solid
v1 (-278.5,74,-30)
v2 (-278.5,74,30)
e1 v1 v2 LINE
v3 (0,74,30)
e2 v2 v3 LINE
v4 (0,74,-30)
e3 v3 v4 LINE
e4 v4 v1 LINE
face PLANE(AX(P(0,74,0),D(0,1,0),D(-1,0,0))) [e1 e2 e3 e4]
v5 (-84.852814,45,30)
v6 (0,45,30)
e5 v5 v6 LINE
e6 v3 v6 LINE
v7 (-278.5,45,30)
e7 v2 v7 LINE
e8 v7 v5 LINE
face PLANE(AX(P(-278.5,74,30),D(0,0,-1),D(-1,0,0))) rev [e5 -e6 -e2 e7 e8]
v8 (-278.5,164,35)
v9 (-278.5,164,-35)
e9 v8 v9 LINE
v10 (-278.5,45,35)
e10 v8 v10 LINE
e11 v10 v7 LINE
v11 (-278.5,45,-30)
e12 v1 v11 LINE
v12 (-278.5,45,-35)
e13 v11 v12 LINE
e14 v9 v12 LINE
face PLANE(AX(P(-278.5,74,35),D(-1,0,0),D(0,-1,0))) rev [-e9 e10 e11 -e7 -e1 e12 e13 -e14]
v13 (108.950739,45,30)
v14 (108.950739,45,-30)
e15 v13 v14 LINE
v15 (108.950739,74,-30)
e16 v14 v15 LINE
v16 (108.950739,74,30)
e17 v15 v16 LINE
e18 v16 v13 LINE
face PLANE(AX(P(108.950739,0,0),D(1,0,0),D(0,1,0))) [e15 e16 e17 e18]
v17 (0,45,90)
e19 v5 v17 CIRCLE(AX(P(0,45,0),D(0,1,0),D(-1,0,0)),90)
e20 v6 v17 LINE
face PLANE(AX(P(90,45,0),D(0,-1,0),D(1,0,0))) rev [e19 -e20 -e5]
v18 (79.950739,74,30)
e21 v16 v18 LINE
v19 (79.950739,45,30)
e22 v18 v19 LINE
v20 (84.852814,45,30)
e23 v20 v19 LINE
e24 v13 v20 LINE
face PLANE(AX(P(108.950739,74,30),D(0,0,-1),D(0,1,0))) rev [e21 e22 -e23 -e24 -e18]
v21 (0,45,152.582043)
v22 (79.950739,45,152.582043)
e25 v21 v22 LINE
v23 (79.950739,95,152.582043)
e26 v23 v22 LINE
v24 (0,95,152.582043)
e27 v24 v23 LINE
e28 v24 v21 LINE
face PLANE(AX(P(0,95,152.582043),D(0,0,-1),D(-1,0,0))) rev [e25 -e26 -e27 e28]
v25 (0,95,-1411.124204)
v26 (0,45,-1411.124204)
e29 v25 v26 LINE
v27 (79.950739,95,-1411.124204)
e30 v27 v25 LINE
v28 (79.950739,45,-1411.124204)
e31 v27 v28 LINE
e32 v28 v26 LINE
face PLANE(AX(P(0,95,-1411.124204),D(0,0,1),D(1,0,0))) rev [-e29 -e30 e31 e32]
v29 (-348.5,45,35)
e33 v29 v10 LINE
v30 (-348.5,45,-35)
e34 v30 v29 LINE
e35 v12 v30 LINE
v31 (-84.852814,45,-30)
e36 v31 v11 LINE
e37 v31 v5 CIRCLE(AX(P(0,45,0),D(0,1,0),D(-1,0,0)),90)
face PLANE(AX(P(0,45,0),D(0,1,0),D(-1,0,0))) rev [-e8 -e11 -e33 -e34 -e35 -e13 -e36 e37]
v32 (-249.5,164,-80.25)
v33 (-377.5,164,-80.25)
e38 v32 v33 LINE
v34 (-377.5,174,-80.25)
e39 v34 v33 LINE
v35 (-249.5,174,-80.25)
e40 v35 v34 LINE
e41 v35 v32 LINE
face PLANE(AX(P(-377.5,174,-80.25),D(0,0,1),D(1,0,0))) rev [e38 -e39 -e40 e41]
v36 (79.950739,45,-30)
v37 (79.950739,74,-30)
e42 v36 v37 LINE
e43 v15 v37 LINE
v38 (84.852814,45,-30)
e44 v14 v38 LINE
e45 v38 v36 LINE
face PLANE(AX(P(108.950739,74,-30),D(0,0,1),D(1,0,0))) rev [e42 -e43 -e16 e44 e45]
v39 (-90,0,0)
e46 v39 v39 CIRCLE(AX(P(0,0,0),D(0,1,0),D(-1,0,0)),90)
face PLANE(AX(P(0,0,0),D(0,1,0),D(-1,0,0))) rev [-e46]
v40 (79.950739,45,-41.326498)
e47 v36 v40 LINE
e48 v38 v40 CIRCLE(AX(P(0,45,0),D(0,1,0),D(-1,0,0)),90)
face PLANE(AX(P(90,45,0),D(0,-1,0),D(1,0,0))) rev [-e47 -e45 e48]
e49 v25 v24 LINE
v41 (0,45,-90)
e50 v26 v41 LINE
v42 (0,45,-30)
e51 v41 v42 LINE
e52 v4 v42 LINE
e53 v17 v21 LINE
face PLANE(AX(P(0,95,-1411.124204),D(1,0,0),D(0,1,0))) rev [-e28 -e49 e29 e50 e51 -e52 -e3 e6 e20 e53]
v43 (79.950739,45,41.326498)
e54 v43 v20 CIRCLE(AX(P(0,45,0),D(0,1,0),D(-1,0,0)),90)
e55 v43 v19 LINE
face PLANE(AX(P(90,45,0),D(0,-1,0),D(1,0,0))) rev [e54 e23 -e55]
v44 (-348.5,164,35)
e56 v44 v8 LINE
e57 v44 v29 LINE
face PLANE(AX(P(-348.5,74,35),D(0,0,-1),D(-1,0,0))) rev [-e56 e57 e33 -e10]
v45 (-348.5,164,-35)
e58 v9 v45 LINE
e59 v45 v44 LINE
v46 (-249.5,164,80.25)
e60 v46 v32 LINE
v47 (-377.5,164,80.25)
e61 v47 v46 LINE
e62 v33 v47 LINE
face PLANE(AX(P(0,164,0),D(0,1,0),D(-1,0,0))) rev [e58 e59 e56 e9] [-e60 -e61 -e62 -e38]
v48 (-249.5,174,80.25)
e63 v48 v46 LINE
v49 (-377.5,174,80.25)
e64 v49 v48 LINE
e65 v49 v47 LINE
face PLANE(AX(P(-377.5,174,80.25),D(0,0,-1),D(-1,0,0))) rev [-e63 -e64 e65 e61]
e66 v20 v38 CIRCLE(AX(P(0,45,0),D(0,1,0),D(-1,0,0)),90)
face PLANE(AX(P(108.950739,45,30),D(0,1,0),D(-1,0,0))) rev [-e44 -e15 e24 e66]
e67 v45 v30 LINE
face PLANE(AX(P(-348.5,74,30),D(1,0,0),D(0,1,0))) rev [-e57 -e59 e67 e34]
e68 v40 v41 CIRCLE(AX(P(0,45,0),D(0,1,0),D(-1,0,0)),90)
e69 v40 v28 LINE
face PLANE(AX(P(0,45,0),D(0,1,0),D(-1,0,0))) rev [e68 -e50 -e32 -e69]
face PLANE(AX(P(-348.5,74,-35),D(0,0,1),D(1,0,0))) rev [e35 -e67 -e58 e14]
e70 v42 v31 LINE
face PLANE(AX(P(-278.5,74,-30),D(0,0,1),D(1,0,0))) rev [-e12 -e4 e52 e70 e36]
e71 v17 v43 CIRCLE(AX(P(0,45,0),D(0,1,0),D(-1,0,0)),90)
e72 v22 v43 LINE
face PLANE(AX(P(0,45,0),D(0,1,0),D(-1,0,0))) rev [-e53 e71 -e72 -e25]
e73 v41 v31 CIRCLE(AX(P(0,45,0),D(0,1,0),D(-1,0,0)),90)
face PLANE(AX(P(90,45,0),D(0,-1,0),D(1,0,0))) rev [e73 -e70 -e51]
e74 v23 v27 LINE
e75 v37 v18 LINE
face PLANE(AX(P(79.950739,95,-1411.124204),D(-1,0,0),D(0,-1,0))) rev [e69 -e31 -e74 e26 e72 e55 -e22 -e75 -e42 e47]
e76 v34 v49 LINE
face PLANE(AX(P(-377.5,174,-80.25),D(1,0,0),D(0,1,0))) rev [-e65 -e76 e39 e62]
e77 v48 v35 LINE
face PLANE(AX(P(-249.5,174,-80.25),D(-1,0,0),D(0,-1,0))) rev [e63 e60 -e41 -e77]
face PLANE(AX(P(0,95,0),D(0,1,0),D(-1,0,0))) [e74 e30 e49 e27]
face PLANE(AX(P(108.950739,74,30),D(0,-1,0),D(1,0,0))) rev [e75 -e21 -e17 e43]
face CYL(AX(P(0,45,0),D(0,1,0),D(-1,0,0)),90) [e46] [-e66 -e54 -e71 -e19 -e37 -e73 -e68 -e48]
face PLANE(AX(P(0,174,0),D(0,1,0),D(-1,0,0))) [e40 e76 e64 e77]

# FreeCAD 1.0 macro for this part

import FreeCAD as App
import Part
import Sketcher

V = App.Vector
Q = App.Units.Quantity

doc = App.newDocument("Part")
body = doc.addObject("PartDesign::Body", "Body")

# Sketch on XY plane
sketch1 = body.newObject("Sketcher::SketchObject", "Sketch")
sketch1.AttachmentSupport = (doc.getObject("XY_Plane"), [""])
sketch1.MapMode = "FlatFace"
sketch1.addGeometry(Part.LineSegment(V(0, 45, 0), V(0, 0, 0)), False)
sketch1.addGeometry(Part.LineSegment(V(0, 0, 0), V(90, 0, 0)), False)
sketch1.addGeometry(Part.LineSegment(V(90, 0, 0), V(90, 45, 0)), False)
sketch1.addGeometry(Part.LineSegment(V(90, 45, 0), V(0, 45, 0)), False)
sketch1.addConstraint(Sketcher.Constraint("Coincident", 0, 2, 1, 1))
sketch1.addConstraint(Sketcher.Constraint("Coincident", 1, 2, 2, 1))
sketch1.addConstraint(Sketcher.Constraint("Coincident", 2, 2, 3, 1))
sketch1.addConstraint(Sketcher.Constraint("Coincident", 3, 2, 0, 1))
sketch1.addConstraint(Sketcher.Constraint("Vertical", 0))
sketch1.addConstraint(Sketcher.Constraint("Horizontal", 1))
sketch1.addConstraint(Sketcher.Constraint("Vertical", 2))
sketch1.addConstraint(Sketcher.Constraint("Horizontal", 3))
sketch1.addConstraint(Sketcher.Constraint("Coincident", 0, 2, -1, 1))
sketch1.addConstraint(Sketcher.Constraint("DistanceX", 1, 1, 1, 2, Q("90 mm")))
sketch1.addConstraint(Sketcher.Constraint("DistanceY", 0, 2, 0, 1, Q("45 mm")))
revolution = body.newObject("PartDesign::Revolution", "Revolution")
revolution.Profile = sketch1
revolution.ReferenceAxis = (sketch1, ["V_Axis"])
revolution.Angle = 360

# Sketch on XZ plane
sketch2 = body.newObject("Sketcher::SketchObject", "Sketch001")
sketch2.AttachmentSupport = (doc.getObject("XZ_Plane"), [""])
sketch2.MapMode = "FlatFace"
sketch2.AttachmentOffset = App.Placement(V(0, 0, -45), App.Rotation())
sketch2.addGeometry(Part.LineSegment(V(0, -1411, 0), V(0, 153, 0)), False)
sketch2.addGeometry(Part.LineSegment(V(0, 153, 0), V(80, 153, 0)), False)
sketch2.addGeometry(Part.LineSegment(V(80, 153, 0), V(80, -1411, 0)), False)
sketch2.addGeometry(Part.LineSegment(V(80, -1411, 0), V(0, -1411, 0)), False)
sketch2.addConstraint(Sketcher.Constraint("Coincident", 0, 2, 1, 1))
sketch2.addConstraint(Sketcher.Constraint("Coincident", 1, 2, 2, 1))
sketch2.addConstraint(Sketcher.Constraint("Coincident", 2, 2, 3, 1))
sketch2.addConstraint(Sketcher.Constraint("Coincident", 3, 2, 0, 1))
sketch2.addConstraint(Sketcher.Constraint("Vertical", 0))
sketch2.addConstraint(Sketcher.Constraint("Horizontal", 1))
sketch2.addConstraint(Sketcher.Constraint("Vertical", 2))
sketch2.addConstraint(Sketcher.Constraint("Horizontal", 3))
sketch2.addConstraint(Sketcher.Constraint("PointOnObject", 0, 2, -2))
sketch2.addConstraint(Sketcher.Constraint("DistanceX", 1, 1, 1, 2, Q("79.950739 mm")))
sketch2.addConstraint(Sketcher.Constraint("DistanceY", 0, 1, 0, 2, Q("1563.706248 mm")))
sketch2.addConstraint(Sketcher.Constraint("DistanceY", -1, 1, 0, 2, Q("152.582043 mm")))
pad1 = body.newObject("PartDesign::Pad", "Pad")
pad1.Profile = sketch2
pad1.Length = 50
pad1.Reversed = True

# Sketch on XZ plane
sketch3 = body.newObject("Sketcher::SketchObject", "Sketch002")
sketch3.AttachmentSupport = (doc.getObject("XZ_Plane"), [""])
sketch3.MapMode = "FlatFace"
sketch3.AttachmentOffset = App.Placement(V(0, 0, -45), App.Rotation())
sketch3.addGeometry(Part.LineSegment(V(0, -30, 0), V(-278, -30, 0)), False)
sketch3.addGeometry(Part.LineSegment(V(-278, -30, 0), V(-278, -35, 0)), False)
sketch3.addGeometry(Part.LineSegment(V(-278, -35, 0), V(-348, -35, 0)), False)
sketch3.addGeometry(Part.LineSegment(V(-348, -35, 0), V(-348, 35, 0)), False)
sketch3.addGeometry(Part.LineSegment(V(-348, 35, 0), V(-278, 35, 0)), False)
sketch3.addGeometry(Part.LineSegment(V(-278, 35, 0), V(-278, 30, 0)), False)
sketch3.addGeometry(Part.LineSegment(V(-278, 30, 0), V(0, 30, 0)), False)
sketch3.addGeometry(Part.LineSegment(V(0, 30, 0), V(0, -30, 0)), False)
sketch3.addConstraint(Sketcher.Constraint("Coincident", 0, 2, 1, 1))
sketch3.addConstraint(Sketcher.Constraint("Coincident", 1, 2, 2, 1))
sketch3.addConstraint(Sketcher.Constraint("Coincident", 2, 2, 3, 1))
sketch3.addConstraint(Sketcher.Constraint("Coincident", 3, 2, 4, 1))
sketch3.addConstraint(Sketcher.Constraint("Coincident", 4, 2, 5, 1))
sketch3.addConstraint(Sketcher.Constraint("Coincident", 5, 2, 6, 1))
sketch3.addConstraint(Sketcher.Constraint("Coincident", 6, 2, 7, 1))
sketch3.addConstraint(Sketcher.Constraint("Coincident", 7, 2, 0, 1))
sketch3.addConstraint(Sketcher.Constraint("Horizontal", 0))
sketch3.addConstraint(Sketcher.Constraint("Vertical", 1))
sketch3.addConstraint(Sketcher.Constraint("Horizontal", 2))
sketch3.addConstraint(Sketcher.Constraint("Vertical", 3))
sketch3.addConstraint(Sketcher.Constraint("Horizontal", 4))
sketch3.addConstraint(Sketcher.Constraint("Vertical", 5))
sketch3.addConstraint(Sketcher.Constraint("Horizontal", 6))
sketch3.addConstraint(Sketcher.Constraint("Vertical", 7))
sketch3.addConstraint(Sketcher.Constraint("Symmetric", 6, 2, 7, 2, -1, 1))
sketch3.addConstraint(Sketcher.Constraint("Symmetric", 1, 2, 4, 2, -1))
sketch3.addConstraint(Sketcher.Constraint("Equal", 4, 3))
sketch3.addConstraint(Sketcher.Constraint("DistanceX", 2, 2, 2, 1, Q("70 mm")))
sketch3.addConstraint(Sketcher.Constraint("DistanceY", 1, 2, 1, 1, Q("5 mm")))
sketch3.addConstraint(Sketcher.Constraint("DistanceX", 0, 2, 0, 1, Q("278.5 mm")))
pad2 = body.newObject("PartDesign::Pad", "Pad001")
pad2.Profile = sketch3
pad2.Length = 29
pad2.Reversed = True

# Sketch on YZ plane
sketch4 = body.newObject("Sketcher::SketchObject", "Sketch003")
sketch4.AttachmentSupport = (doc.getObject("YZ_Plane"), [""])
sketch4.MapMode = "FlatFace"
sketch4.AttachmentOffset = App.Placement(V(0, 0, 79.950739), App.Rotation())
sketch4.addGeometry(Part.LineSegment(V(74, 30, 0), V(45, 30, 0)), False)
sketch4.addGeometry(Part.LineSegment(V(45, 30, 0), V(45, -30, 0)), False)
sketch4.addGeometry(Part.LineSegment(V(45, -30, 0), V(74, -30, 0)), False)
sketch4.addGeometry(Part.LineSegment(V(74, -30, 0), V(74, 30, 0)), False)
sketch4.addConstraint(Sketcher.Constraint("Coincident", 0, 2, 1, 1))
sketch4.addConstraint(Sketcher.Constraint("Coincident", 1, 2, 2, 1))
sketch4.addConstraint(Sketcher.Constraint("Coincident", 2, 2, 3, 1))
sketch4.addConstraint(Sketcher.Constraint("Coincident", 3, 2, 0, 1))
sketch4.addConstraint(Sketcher.Constraint("Horizontal", 0))
sketch4.addConstraint(Sketcher.Constraint("Vertical", 1))
sketch4.addConstraint(Sketcher.Constraint("Horizontal", 2))
sketch4.addConstraint(Sketcher.Constraint("Vertical", 3))
sketch4.addConstraint(Sketcher.Constraint("DistanceX", 0, 2, 0, 1, Q("29 mm")))
sketch4.addConstraint(Sketcher.Constraint("DistanceY", 1, 2, 1, 1, Q("60 mm")))
sketch4.addConstraint(Sketcher.Constraint("DistanceX", -1, 1, 0, 2, Q("45 mm")))
sketch4.addConstraint(Sketcher.Constraint("DistanceY", -1, 1, 0, 2, Q("30 mm")))
pad3 = body.newObject("PartDesign::Pad", "Pad002")
pad3.Profile = sketch4
pad3.Length = 29

# Sketch on XZ plane
sketch5 = body.newObject("Sketcher::SketchObject", "Sketch004")
sketch5.AttachmentSupport = (doc.getObject("XZ_Plane"), [""])
sketch5.MapMode = "FlatFace"
sketch5.AttachmentOffset = App.Placement(V(0, 0, -74), App.Rotation())
sketch5.addGeometry(Part.LineSegment(V(-278, -35, 0), V(-348, -35, 0)), False)
sketch5.addGeometry(Part.LineSegment(V(-348, -35, 0), V(-348, 35, 0)), False)
sketch5.addGeometry(Part.LineSegment(V(-348, 35, 0), V(-278, 35, 0)), False)
sketch5.addGeometry(Part.LineSegment(V(-278, 35, 0), V(-278, -35, 0)), False)
sketch5.addConstraint(Sketcher.Constraint("Coincident", 0, 2, 1, 1))
sketch5.addConstraint(Sketcher.Constraint("Coincident", 1, 2, 2, 1))
sketch5.addConstraint(Sketcher.Constraint("Coincident", 2, 2, 3, 1))
sketch5.addConstraint(Sketcher.Constraint("Coincident", 3, 2, 0, 1))
sketch5.addConstraint(Sketcher.Constraint("Horizontal", 0))
sketch5.addConstraint(Sketcher.Constraint("Vertical", 1))
sketch5.addConstraint(Sketcher.Constraint("Horizontal", 2))
sketch5.addConstraint(Sketcher.Constraint("Vertical", 3))
sketch5.addConstraint(Sketcher.Constraint("Equal", 2, 1))
sketch5.addConstraint(Sketcher.Constraint("DistanceX", 0, 2, 0, 1, Q("70 mm")))
sketch5.addConstraint(Sketcher.Constraint("DistanceY", 0, 2, -1, 1, Q("35 mm")))
sketch5.addConstraint(Sketcher.Constraint("DistanceX", 0, 2, -1, 1, Q("348.5 mm")))
pad4 = body.newObject("PartDesign::Pad", "Pad003")
pad4.Profile = sketch5
pad4.Length = 90
pad4.Reversed = True

# Sketch on XZ plane
sketch6 = body.newObject("Sketcher::SketchObject", "Sketch005")
sketch6.AttachmentSupport = (doc.getObject("XZ_Plane"), [""])
sketch6.MapMode = "FlatFace"
sketch6.AttachmentOffset = App.Placement(V(0, 0, -164), App.Rotation())
sketch6.addGeometry(Part.LineSegment(V(-378, -80, 0), V(-378, 80, 0)), False)
sketch6.addGeometry(Part.LineSegment(V(-378, 80, 0), V(-250, 80, 0)), False)
sketch6.addGeometry(Part.LineSegment(V(-250, 80, 0), V(-250, -80, 0)), False)
sketch6.addGeometry(Part.LineSegment(V(-250, -80, 0), V(-378, -80, 0)), False)
sketch6.addConstraint(Sketcher.Constraint("Coincident", 0, 2, 1, 1))
sketch6.addConstraint(Sketcher.Constraint("Coincident", 1, 2, 2, 1))
sketch6.addConstraint(Sketcher.Constraint("Coincident", 2, 2, 3, 1))
sketch6.addConstraint(Sketcher.Constraint("Coincident", 3, 2, 0, 1))
sketch6.addConstraint(Sketcher.Constraint("Vertical", 0))
sketch6.addConstraint(Sketcher.Constraint("Horizontal", 1))
sketch6.addConstraint(Sketcher.Constraint("Vertical", 2))
sketch6.addConstraint(Sketcher.Constraint("Horizontal", 3))
sketch6.addConstraint(Sketcher.Constraint("DistanceX", 1, 1, 1, 2, Q("128 mm")))
sketch6.addConstraint(Sketcher.Constraint("DistanceY", 0, 1, 0, 2, Q("160.5 mm")))
sketch6.addConstraint(Sketcher.Constraint("DistanceX", 0, 2, -1, 1, Q("377.5 mm")))
sketch6.addConstraint(Sketcher.Constraint("DistanceY", -1, 1, 0, 2, Q("80.25 mm")))
pad5 = body.newObject("PartDesign::Pad", "Pad004")
pad5.Profile = sketch6
pad5.Length = 10
pad5.Reversed = True

doc.recompute()
